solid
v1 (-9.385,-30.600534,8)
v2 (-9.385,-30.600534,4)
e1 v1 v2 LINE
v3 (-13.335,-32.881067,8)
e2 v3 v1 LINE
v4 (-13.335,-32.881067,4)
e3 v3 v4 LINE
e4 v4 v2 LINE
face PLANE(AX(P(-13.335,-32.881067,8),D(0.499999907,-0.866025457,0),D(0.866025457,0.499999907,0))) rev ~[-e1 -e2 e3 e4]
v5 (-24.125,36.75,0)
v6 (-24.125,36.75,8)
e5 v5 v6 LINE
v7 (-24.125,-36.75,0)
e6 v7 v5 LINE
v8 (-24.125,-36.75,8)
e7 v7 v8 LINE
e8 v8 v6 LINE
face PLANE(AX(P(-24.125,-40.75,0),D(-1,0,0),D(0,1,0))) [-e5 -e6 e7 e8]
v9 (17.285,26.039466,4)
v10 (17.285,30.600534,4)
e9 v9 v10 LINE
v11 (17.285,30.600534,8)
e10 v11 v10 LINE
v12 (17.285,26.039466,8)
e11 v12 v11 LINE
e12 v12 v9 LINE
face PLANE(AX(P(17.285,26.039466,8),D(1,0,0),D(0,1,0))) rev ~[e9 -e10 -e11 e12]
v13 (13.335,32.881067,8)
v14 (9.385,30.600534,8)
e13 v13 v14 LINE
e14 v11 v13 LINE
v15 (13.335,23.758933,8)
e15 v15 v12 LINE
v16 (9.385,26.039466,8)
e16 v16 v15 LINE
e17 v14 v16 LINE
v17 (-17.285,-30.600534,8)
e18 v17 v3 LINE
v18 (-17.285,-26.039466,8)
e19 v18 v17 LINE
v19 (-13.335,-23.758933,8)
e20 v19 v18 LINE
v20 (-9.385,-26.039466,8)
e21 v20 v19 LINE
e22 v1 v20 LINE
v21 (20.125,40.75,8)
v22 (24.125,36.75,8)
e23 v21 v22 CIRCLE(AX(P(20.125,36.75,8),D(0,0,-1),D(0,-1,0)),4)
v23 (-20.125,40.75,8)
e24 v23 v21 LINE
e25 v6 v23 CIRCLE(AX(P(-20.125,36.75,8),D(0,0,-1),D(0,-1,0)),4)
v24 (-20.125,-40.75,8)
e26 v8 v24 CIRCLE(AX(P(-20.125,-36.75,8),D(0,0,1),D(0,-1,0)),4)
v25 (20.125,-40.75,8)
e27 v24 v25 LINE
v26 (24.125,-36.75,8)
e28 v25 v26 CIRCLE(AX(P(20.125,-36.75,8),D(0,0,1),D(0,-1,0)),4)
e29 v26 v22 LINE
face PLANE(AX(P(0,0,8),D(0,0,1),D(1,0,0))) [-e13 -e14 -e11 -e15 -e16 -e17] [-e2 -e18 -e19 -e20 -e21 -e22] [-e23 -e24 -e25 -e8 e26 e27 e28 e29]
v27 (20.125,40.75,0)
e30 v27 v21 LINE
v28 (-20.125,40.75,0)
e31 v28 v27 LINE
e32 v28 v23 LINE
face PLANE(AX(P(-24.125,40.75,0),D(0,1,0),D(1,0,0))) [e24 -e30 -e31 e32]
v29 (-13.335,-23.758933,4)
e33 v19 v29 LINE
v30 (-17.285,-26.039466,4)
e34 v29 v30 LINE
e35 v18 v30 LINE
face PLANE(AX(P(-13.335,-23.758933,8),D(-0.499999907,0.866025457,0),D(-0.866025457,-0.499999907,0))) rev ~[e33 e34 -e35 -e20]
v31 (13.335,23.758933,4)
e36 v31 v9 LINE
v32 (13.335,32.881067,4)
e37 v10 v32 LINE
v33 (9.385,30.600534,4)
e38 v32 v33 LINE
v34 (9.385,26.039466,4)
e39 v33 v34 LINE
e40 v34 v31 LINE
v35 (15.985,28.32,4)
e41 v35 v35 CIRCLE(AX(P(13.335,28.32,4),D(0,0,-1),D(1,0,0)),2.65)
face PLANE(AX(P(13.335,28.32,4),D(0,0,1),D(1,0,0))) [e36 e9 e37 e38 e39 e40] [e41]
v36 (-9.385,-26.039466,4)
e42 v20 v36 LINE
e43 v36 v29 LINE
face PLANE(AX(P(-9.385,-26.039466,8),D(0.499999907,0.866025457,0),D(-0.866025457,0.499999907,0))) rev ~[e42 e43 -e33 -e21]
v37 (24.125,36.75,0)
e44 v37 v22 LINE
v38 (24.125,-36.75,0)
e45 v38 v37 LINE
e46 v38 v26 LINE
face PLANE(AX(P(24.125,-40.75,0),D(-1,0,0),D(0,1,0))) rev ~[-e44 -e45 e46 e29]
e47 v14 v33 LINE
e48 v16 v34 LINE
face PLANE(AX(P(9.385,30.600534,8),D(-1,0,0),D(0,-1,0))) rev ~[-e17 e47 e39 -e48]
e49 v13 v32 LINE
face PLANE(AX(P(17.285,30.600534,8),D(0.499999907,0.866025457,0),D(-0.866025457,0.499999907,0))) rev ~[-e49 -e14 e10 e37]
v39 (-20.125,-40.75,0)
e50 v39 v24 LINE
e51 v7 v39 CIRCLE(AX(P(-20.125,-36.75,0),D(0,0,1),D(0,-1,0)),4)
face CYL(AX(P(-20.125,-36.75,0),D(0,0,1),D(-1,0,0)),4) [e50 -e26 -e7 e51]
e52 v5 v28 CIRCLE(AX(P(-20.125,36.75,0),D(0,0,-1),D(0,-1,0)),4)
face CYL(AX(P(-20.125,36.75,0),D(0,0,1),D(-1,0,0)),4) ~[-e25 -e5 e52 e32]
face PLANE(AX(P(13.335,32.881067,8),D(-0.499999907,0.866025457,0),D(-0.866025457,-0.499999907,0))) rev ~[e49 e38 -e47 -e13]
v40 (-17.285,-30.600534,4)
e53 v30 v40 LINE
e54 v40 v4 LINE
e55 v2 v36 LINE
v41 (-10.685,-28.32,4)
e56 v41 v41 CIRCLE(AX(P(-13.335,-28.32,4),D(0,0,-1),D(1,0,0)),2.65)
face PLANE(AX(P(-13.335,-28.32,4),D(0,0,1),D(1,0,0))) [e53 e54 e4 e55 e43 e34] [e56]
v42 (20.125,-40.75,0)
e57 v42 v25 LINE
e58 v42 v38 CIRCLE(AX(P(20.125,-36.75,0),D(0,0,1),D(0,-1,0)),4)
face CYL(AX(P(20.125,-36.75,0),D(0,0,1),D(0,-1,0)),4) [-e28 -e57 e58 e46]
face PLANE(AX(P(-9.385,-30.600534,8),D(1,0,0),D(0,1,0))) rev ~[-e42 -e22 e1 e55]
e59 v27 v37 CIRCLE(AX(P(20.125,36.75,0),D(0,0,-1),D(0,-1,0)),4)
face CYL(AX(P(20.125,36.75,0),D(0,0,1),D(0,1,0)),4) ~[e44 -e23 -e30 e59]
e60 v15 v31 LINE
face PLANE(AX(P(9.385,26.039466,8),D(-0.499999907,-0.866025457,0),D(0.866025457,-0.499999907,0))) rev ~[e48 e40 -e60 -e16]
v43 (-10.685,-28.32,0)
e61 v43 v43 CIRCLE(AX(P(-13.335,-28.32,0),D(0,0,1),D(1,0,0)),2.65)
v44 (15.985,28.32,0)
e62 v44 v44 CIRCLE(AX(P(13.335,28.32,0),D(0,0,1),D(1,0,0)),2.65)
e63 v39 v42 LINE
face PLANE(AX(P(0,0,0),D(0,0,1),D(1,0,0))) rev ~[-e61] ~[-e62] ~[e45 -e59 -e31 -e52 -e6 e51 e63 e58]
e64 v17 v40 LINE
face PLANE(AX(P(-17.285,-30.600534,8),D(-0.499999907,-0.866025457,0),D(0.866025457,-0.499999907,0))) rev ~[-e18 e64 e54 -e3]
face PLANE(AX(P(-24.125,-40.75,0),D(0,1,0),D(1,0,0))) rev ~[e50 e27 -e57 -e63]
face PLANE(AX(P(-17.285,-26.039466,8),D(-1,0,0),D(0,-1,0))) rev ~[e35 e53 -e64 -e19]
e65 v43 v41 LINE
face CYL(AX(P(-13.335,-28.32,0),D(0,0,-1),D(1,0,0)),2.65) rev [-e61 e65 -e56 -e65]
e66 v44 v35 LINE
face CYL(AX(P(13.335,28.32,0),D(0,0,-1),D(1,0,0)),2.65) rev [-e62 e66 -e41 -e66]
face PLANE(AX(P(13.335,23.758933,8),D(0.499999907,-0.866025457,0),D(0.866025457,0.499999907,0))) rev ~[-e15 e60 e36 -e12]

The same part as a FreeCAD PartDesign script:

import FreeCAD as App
import Part
import Sketcher
Q = App.Units.Quantity


def edges_at(feature, points):
    """Names of the edges that pass closest to the given points."""
    edges = feature.Shape.Edges
    near = lambda p: min(range(len(edges)), key=lambda i: edges[i].distToShape(Part.Vertex(*p))[0])
    return sorted({f"Edge{near(p) + 1}" for p in points})

doc = App.newDocument("Part")
body = doc.addObject("PartDesign::Body", "Body")

# Sketch on XY plane
sketch1 = doc.addObject("Sketcher::SketchObject", "Sketch")
body.addObject(sketch1)
sketch1.AttachmentSupport = (doc.XY_Plane, [""])
sketch1.MapMode = "FlatFace"
sketch1.addGeometry([
    Part.LineSegment(App.Vector(-24.1, 40.8, 0), App.Vector(-24.1, -40.8, 0)),  # 0
    Part.LineSegment(App.Vector(-24.1, -40.8, 0), App.Vector(24.1, -40.8, 0)),  # 1
    Part.LineSegment(App.Vector(24.1, -40.8, 0), App.Vector(24.1, 40.8, 0)),  # 2
    Part.LineSegment(App.Vector(24.1, 40.8, 0), App.Vector(-24.1, 40.8, 0)),  # 3
    Part.Circle(App.Vector(-13.3, -28.3, 0), App.Vector(0, 0, 1), 2.6),  # 4
    Part.Circle(App.Vector(13.3, 28.3, 0), App.Vector(0, 0, 1), 2.6),  # 5
], False)
sketch1.addConstraint([
    Sketcher.Constraint("Coincident", 0, 2, 1, 1),
    Sketcher.Constraint("Coincident", 1, 2, 2, 1),
    Sketcher.Constraint("Coincident", 2, 2, 3, 1),
    Sketcher.Constraint("Coincident", 3, 2, 0, 1),
    Sketcher.Constraint("Vertical", 0),
    Sketcher.Constraint("Horizontal", 1),
    Sketcher.Constraint("Vertical", 2),
    Sketcher.Constraint("Horizontal", 3),
    Sketcher.Constraint("Equal", 4, 5),
    Sketcher.Constraint("Symmetric", 4, 3, 5, 3, -1, 1),
    Sketcher.Constraint("Symmetric", 0, 2, 2, 2, -1, 1),
    Sketcher.Constraint("Diameter", 4, 5.3),
    Sketcher.Constraint("DistanceY", 0, 2, 0, 1, 81.5),
    Sketcher.Constraint("DistanceX", 1, 1, 1, 2, 48.25),
    Sketcher.Constraint("DistanceY", 4, 3, -1, 1, 28.32),
    Sketcher.Constraint("DistanceX", 4, 3, 5, 3, 26.67),
])
pad1 = doc.addObject("PartDesign::Pad", "Pad")
body.addObject(pad1)
pad1.Profile = sketch1
pad1.Length = 8

# Sketch on XY plane
sketch2 = doc.addObject("Sketcher::SketchObject", "Sketch001")
body.addObject(sketch2)
sketch2.AttachmentSupport = (doc.XY_Plane, [""])
sketch2.MapMode = "FlatFace"
sketch2.AttachmentOffset = App.Placement(App.Vector(0, 0, 8), App.Rotation())
sketch2.addGeometry([
    Part.LineSegment(App.Vector(17.3, 26, 0), App.Vector(17.3, 30.6, 0)),  # 0
    Part.LineSegment(App.Vector(17.3, 30.6, 0), App.Vector(13.3, 32.9, 0)),  # 1
    Part.LineSegment(App.Vector(13.3, 32.9, 0), App.Vector(9.4, 30.6, 0)),  # 2
    Part.LineSegment(App.Vector(9.4, 30.6, 0), App.Vector(9.4, 26, 0)),  # 3
    Part.LineSegment(App.Vector(9.4, 26, 0), App.Vector(13.3, 23.8, 0)),  # 4
    Part.LineSegment(App.Vector(13.3, 23.8, 0), App.Vector(17.3, 26, 0)),  # 5
    Part.LineSegment(App.Vector(-9.4, -26, 0), App.Vector(-13.3, -23.8, 0)),  # 6
    Part.LineSegment(App.Vector(-13.3, -23.8, 0), App.Vector(-17.3, -26, 0)),  # 7
    Part.LineSegment(App.Vector(-17.3, -26, 0), App.Vector(-17.3, -30.6, 0)),  # 8
    Part.LineSegment(App.Vector(-17.3, -30.6, 0), App.Vector(-13.3, -32.9, 0)),  # 9
    Part.LineSegment(App.Vector(-13.3, -32.9, 0), App.Vector(-9.4, -30.6, 0)),  # 10
    Part.LineSegment(App.Vector(-9.4, -30.6, 0), App.Vector(-9.4, -26, 0)),  # 11
], False)
sketch2.addConstraint([
    Sketcher.Constraint("Coincident", 0, 2, 1, 1),
    Sketcher.Constraint("Coincident", 1, 2, 2, 1),
    Sketcher.Constraint("Coincident", 2, 2, 3, 1),
    Sketcher.Constraint("Coincident", 3, 2, 4, 1),
    Sketcher.Constraint("Coincident", 4, 2, 5, 1),
    Sketcher.Constraint("Coincident", 5, 2, 0, 1),
    Sketcher.Constraint("Coincident", 6, 2, 7, 1),
    Sketcher.Constraint("Coincident", 7, 2, 8, 1),
    Sketcher.Constraint("Coincident", 8, 2, 9, 1),
    Sketcher.Constraint("Coincident", 9, 2, 10, 1),
    Sketcher.Constraint("Coincident", 10, 2, 11, 1),
    Sketcher.Constraint("Coincident", 11, 2, 6, 1),
    Sketcher.Constraint("Vertical", 0),
    Sketcher.Constraint("Vertical", 3),
    Sketcher.Constraint("Vertical", 8),
    Sketcher.Constraint("Vertical", 11),
    Sketcher.Constraint("Symmetric", 4, 2, 6, 2, -1, 1),
    Sketcher.Constraint("Symmetric", 5, 2, 7, 2, -1, 1),
    Sketcher.Constraint("Symmetric", 1, 2, 9, 2, -1, 1),
    Sketcher.Constraint("Symmetric", 2, 2, 10, 2, -1, 1),
    Sketcher.Constraint("Parallel", 1, 4),
    Sketcher.Constraint("Parallel", 2, 5),
    Sketcher.Constraint("Parallel", 4, 6),
    Sketcher.Constraint("Parallel", 6, 9),
    Sketcher.Constraint("Horizontal", 0, 2, 2, 2),
    Sketcher.Constraint("Horizontal", 3, 2, 5, 2),
    Sketcher.Constraint("Vertical", 1, 2, 4, 2),
    Sketcher.Constraint("Angle", 1, Q("150.000006 deg")),
    Sketcher.Constraint("DistanceX", 2, 2, 0, 2, 7.9),
    Sketcher.Constraint("DistanceX", 6, 2, 4, 2, 26.67),
    Sketcher.Constraint("DistanceY", 7, 2, 2, 2, 56.64),
    Sketcher.Constraint("DistanceY", 3, 2, 1, 2, 6.841601),
])
pocket1 = doc.addObject("PartDesign::Pocket", "Pocket")
body.addObject(pocket1)
pocket1.Profile = sketch2
pocket1.Length = 4
doc.recompute()

fillet = doc.addObject("PartDesign::Fillet", "Fillet")
body.addObject(fillet)
fillet.Base = (pocket1, edges_at(pocket1, [
    (-24.125, -40.75, 4),
    (24.125, -40.75, 4),
    (24.125, 40.75, 4),
    (-24.125, 40.75, 4),
]))
fillet.Radius = 4

doc.recompute()
